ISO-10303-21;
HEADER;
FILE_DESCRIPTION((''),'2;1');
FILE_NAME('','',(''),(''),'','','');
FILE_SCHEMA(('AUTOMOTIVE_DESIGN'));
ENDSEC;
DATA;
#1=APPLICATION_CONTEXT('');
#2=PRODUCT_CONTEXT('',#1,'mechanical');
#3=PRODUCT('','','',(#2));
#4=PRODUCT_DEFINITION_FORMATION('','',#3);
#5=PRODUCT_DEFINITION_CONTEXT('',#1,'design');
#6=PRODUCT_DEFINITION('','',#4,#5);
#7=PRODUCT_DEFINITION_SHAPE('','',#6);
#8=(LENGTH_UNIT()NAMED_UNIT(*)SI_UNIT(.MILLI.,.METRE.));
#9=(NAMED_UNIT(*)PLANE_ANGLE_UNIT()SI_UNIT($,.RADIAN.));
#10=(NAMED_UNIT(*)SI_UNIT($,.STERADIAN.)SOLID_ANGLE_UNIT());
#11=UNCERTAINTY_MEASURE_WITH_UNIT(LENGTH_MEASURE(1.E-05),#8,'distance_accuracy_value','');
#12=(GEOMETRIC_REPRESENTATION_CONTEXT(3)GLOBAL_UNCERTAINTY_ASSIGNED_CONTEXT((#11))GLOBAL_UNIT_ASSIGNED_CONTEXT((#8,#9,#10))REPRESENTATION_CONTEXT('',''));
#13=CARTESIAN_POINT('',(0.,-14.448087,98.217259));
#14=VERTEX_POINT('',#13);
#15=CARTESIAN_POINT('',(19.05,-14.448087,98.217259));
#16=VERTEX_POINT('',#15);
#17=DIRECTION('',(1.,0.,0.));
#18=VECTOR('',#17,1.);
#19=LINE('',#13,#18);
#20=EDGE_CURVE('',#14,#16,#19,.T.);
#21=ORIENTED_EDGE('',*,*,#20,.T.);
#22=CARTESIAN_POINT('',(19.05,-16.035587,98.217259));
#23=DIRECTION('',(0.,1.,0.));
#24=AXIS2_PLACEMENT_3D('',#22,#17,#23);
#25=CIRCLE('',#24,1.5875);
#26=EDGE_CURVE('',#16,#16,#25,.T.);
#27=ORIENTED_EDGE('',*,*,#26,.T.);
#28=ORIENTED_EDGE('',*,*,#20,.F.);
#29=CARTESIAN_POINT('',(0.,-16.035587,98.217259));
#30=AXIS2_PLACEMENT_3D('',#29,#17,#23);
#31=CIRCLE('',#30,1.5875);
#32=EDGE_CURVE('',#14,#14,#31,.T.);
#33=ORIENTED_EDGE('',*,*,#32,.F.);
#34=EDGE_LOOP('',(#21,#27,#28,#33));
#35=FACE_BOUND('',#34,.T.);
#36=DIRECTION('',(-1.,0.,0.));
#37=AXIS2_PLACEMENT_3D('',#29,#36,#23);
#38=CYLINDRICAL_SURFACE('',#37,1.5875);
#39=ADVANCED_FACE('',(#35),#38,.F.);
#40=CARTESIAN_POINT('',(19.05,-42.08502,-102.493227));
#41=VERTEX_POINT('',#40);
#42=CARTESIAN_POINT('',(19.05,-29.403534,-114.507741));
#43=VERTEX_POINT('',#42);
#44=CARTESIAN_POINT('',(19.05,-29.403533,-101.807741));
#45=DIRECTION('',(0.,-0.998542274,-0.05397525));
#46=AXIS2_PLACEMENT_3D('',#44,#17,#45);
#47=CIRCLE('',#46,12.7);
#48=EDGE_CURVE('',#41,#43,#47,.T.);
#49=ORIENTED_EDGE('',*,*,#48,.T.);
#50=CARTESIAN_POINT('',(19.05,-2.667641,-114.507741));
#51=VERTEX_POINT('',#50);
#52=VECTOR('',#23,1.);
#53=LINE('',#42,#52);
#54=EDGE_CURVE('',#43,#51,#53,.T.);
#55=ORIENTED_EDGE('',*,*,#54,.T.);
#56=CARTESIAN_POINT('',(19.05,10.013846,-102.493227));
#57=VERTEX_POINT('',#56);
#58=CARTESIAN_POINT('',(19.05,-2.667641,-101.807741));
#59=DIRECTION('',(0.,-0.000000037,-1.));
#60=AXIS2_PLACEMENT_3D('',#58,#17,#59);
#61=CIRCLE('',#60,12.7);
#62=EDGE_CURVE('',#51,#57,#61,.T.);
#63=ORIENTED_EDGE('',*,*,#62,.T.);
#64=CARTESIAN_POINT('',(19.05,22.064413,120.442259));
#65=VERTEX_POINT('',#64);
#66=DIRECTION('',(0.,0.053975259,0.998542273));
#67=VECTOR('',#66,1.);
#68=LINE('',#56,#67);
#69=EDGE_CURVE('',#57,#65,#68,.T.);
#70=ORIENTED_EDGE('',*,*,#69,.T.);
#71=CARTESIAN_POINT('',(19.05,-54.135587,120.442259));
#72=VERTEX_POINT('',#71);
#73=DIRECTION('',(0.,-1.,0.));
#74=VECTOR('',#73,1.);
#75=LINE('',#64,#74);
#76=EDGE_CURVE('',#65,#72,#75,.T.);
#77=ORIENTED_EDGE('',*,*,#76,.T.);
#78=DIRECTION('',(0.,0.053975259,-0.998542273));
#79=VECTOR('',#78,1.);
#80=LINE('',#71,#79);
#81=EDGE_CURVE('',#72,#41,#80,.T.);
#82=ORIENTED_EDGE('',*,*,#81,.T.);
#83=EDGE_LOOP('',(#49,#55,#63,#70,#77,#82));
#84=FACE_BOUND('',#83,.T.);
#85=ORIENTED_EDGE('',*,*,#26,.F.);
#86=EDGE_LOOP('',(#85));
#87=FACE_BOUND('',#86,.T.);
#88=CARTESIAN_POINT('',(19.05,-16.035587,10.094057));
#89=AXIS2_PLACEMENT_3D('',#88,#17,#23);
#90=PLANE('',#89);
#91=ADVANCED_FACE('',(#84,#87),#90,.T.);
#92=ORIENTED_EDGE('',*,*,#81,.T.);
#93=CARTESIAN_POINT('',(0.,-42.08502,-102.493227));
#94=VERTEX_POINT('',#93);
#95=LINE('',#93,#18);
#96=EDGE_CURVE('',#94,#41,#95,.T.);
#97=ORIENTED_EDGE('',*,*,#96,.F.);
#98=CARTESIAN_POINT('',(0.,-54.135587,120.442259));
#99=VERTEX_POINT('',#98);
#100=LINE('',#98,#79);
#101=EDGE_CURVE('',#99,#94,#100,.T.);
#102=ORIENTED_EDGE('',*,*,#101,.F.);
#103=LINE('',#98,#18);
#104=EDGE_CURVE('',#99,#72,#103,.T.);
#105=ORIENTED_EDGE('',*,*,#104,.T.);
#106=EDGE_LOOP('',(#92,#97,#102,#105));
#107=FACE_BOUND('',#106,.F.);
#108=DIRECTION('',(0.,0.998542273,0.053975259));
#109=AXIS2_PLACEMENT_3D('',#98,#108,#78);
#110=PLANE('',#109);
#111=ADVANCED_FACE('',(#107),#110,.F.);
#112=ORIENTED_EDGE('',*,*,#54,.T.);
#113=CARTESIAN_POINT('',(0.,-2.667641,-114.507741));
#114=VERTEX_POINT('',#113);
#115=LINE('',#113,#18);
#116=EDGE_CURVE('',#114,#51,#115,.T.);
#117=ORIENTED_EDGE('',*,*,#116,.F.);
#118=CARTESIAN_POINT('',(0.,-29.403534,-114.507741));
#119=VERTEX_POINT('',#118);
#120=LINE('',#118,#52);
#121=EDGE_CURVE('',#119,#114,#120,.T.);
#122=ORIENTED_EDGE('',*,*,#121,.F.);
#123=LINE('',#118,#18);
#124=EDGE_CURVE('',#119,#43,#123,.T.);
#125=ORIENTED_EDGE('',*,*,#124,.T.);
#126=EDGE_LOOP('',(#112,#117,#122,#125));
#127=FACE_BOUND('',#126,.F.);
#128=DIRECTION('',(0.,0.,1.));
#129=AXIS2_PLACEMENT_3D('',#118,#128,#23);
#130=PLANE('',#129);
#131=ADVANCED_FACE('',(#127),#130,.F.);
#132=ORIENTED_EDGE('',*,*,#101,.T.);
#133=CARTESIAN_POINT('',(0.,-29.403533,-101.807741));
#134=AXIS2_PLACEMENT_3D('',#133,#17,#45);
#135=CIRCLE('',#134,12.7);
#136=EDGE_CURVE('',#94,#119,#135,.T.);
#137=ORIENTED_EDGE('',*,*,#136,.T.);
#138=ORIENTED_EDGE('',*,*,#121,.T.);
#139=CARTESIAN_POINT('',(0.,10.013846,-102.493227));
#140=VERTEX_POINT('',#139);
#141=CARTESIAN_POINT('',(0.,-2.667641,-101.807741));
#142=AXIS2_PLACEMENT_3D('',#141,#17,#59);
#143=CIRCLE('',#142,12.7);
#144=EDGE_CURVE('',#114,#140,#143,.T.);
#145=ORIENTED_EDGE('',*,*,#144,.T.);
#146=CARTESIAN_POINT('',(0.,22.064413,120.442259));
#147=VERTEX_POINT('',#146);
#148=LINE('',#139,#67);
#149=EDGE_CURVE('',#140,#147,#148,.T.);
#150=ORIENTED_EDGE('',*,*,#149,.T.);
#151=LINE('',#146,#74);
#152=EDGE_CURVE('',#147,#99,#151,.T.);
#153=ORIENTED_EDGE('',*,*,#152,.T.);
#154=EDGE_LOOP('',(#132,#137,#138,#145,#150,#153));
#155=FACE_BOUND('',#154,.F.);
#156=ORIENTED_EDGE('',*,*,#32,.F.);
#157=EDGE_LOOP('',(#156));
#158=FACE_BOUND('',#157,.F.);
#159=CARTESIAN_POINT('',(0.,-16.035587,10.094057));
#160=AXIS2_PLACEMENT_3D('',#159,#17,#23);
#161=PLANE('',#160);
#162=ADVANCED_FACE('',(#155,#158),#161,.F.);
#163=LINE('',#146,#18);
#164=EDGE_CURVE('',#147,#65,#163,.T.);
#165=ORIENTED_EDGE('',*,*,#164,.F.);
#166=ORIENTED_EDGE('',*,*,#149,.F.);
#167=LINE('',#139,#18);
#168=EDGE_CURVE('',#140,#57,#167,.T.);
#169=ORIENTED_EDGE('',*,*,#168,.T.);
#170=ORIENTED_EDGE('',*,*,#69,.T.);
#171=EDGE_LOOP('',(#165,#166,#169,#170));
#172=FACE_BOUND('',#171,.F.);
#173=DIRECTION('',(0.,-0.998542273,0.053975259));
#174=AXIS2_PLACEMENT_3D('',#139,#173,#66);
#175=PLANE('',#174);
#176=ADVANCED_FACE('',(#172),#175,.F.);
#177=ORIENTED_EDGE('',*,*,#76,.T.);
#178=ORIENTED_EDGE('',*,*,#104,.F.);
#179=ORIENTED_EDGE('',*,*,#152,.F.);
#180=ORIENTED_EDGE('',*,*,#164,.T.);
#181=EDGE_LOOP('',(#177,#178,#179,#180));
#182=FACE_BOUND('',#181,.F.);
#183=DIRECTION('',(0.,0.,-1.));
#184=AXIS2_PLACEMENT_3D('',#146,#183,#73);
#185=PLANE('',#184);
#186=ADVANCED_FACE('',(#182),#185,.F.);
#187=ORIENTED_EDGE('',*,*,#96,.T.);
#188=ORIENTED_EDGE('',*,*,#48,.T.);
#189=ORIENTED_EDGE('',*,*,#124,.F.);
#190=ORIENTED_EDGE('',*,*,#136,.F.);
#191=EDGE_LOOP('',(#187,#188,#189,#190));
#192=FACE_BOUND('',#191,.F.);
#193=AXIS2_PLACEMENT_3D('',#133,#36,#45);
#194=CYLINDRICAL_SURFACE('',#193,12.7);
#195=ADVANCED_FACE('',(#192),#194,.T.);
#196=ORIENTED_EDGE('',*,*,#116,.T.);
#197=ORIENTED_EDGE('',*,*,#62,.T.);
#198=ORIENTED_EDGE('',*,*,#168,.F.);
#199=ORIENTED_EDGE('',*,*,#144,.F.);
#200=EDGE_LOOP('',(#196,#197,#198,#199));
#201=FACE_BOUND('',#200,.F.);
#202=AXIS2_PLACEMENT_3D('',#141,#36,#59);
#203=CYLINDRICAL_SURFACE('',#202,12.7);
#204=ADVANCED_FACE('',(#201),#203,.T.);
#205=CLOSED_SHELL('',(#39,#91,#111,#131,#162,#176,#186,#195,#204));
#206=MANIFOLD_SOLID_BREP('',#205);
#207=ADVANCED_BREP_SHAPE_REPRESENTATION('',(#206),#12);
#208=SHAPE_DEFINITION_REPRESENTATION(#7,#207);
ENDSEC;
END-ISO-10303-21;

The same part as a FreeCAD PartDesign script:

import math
import FreeCAD as App
import Part
import Sketcher

V = App.Vector
Q = App.Units.Quantity

doc = App.newDocument("Part")
body = doc.addObject("PartDesign::Body", "Body")

# Sketch on YZ plane
sketch1 = doc.addObject("Sketcher::SketchObject", "Sketch")
body.addObject(sketch1)
sketch1.AttachmentSupport = (doc.YZ_Plane, [""])
sketch1.MapMode = "FlatFace"
sketch1.addGeometry(Part.ArcOfCircle(Part.Circle(V(-29.403533, -101.807741, 0), V(0, 0, 1), 12.7), math.radians(-176.905942), math.radians(-90.000002)), False)
sketch1.addGeometry(Part.LineSegment(V(-29.403534, -114.507741, 0), V(-2.667641, -114.507741, 0)), False)
sketch1.addGeometry(Part.ArcOfCircle(Part.Circle(V(-2.667641, -101.807741, 0), V(0, 0, 1), 12.7), math.radians(-90.000002), math.radians(-3.094058)), False)
sketch1.addGeometry(Part.LineSegment(V(10.013846, -102.493227, 0), V(22.064413, 120.442259, 0)), False)
sketch1.addGeometry(Part.LineSegment(V(22.064413, 120.442259, 0), V(-54.135587, 120.442259, 0)), False)
sketch1.addGeometry(Part.LineSegment(V(-54.135587, 120.442259, 0), V(-42.08502, -102.493227, 0)), False)
sketch1.addGeometry(Part.Circle(V(-16.035587, 98.217259, 0), V(0, 0, 1), 1.5875), False)
sketch1.addConstraint(Sketcher.Constraint("Tangent", 0, 2, 1, 1))
sketch1.addConstraint(Sketcher.Constraint("Tangent", 1, 2, 2, 1))
sketch1.addConstraint(Sketcher.Constraint("Tangent", 2, 2, 3, 1))
sketch1.addConstraint(Sketcher.Constraint("Coincident", 3, 2, 4, 1))
sketch1.addConstraint(Sketcher.Constraint("Coincident", 4, 2, 5, 1))
sketch1.addConstraint(Sketcher.Constraint("Tangent", 5, 2, 0, 1))
sketch1.addConstraint(Sketcher.Constraint("Horizontal", 1))
sketch1.addConstraint(Sketcher.Constraint("Horizontal", 4))
sketch1.addConstraint(Sketcher.Constraint("Equal", 0, 2))
sketch1.addConstraint(Sketcher.Constraint("Horizontal", 2, 2, 5, 2))
sketch1.addConstraint(Sketcher.Constraint("Radius", 0, Q("0.5 in")))
sketch1.addConstraint(Sketcher.Constraint("DistanceX", 4, 2, 4, 1, Q("3 in")))
sketch1.addConstraint(Sketcher.Constraint("Diameter", 6, Q("0.125 in")))
sketch1.addConstraint(Sketcher.Constraint("DistanceX", 6, 3, 3, 2, Q("1.5 in")))
sketch1.addConstraint(Sketcher.Constraint("DistanceY", 2, 3, 3, 2, Q("8.75 in")))
sketch1.addConstraint(Sketcher.Constraint("DistanceY", 0, 3, 6, 3, Q("7.875 in")))
sketch1.addConstraint(Sketcher.Constraint("Distance", 3, 223.260939))
sketch1.addConstraint(Sketcher.Constraint("DistanceY", 0, 3, -1, 1, 101.807741))
sketch1.addConstraint(Sketcher.Constraint("DistanceX", 2, 3, -1, 1, 2.667641))
pad1 = doc.addObject("PartDesign::Pad", "Pad")
body.addObject(pad1)
pad1.Profile = sketch1
pad1.Length = Q("0.75 in")

doc.recompute()
